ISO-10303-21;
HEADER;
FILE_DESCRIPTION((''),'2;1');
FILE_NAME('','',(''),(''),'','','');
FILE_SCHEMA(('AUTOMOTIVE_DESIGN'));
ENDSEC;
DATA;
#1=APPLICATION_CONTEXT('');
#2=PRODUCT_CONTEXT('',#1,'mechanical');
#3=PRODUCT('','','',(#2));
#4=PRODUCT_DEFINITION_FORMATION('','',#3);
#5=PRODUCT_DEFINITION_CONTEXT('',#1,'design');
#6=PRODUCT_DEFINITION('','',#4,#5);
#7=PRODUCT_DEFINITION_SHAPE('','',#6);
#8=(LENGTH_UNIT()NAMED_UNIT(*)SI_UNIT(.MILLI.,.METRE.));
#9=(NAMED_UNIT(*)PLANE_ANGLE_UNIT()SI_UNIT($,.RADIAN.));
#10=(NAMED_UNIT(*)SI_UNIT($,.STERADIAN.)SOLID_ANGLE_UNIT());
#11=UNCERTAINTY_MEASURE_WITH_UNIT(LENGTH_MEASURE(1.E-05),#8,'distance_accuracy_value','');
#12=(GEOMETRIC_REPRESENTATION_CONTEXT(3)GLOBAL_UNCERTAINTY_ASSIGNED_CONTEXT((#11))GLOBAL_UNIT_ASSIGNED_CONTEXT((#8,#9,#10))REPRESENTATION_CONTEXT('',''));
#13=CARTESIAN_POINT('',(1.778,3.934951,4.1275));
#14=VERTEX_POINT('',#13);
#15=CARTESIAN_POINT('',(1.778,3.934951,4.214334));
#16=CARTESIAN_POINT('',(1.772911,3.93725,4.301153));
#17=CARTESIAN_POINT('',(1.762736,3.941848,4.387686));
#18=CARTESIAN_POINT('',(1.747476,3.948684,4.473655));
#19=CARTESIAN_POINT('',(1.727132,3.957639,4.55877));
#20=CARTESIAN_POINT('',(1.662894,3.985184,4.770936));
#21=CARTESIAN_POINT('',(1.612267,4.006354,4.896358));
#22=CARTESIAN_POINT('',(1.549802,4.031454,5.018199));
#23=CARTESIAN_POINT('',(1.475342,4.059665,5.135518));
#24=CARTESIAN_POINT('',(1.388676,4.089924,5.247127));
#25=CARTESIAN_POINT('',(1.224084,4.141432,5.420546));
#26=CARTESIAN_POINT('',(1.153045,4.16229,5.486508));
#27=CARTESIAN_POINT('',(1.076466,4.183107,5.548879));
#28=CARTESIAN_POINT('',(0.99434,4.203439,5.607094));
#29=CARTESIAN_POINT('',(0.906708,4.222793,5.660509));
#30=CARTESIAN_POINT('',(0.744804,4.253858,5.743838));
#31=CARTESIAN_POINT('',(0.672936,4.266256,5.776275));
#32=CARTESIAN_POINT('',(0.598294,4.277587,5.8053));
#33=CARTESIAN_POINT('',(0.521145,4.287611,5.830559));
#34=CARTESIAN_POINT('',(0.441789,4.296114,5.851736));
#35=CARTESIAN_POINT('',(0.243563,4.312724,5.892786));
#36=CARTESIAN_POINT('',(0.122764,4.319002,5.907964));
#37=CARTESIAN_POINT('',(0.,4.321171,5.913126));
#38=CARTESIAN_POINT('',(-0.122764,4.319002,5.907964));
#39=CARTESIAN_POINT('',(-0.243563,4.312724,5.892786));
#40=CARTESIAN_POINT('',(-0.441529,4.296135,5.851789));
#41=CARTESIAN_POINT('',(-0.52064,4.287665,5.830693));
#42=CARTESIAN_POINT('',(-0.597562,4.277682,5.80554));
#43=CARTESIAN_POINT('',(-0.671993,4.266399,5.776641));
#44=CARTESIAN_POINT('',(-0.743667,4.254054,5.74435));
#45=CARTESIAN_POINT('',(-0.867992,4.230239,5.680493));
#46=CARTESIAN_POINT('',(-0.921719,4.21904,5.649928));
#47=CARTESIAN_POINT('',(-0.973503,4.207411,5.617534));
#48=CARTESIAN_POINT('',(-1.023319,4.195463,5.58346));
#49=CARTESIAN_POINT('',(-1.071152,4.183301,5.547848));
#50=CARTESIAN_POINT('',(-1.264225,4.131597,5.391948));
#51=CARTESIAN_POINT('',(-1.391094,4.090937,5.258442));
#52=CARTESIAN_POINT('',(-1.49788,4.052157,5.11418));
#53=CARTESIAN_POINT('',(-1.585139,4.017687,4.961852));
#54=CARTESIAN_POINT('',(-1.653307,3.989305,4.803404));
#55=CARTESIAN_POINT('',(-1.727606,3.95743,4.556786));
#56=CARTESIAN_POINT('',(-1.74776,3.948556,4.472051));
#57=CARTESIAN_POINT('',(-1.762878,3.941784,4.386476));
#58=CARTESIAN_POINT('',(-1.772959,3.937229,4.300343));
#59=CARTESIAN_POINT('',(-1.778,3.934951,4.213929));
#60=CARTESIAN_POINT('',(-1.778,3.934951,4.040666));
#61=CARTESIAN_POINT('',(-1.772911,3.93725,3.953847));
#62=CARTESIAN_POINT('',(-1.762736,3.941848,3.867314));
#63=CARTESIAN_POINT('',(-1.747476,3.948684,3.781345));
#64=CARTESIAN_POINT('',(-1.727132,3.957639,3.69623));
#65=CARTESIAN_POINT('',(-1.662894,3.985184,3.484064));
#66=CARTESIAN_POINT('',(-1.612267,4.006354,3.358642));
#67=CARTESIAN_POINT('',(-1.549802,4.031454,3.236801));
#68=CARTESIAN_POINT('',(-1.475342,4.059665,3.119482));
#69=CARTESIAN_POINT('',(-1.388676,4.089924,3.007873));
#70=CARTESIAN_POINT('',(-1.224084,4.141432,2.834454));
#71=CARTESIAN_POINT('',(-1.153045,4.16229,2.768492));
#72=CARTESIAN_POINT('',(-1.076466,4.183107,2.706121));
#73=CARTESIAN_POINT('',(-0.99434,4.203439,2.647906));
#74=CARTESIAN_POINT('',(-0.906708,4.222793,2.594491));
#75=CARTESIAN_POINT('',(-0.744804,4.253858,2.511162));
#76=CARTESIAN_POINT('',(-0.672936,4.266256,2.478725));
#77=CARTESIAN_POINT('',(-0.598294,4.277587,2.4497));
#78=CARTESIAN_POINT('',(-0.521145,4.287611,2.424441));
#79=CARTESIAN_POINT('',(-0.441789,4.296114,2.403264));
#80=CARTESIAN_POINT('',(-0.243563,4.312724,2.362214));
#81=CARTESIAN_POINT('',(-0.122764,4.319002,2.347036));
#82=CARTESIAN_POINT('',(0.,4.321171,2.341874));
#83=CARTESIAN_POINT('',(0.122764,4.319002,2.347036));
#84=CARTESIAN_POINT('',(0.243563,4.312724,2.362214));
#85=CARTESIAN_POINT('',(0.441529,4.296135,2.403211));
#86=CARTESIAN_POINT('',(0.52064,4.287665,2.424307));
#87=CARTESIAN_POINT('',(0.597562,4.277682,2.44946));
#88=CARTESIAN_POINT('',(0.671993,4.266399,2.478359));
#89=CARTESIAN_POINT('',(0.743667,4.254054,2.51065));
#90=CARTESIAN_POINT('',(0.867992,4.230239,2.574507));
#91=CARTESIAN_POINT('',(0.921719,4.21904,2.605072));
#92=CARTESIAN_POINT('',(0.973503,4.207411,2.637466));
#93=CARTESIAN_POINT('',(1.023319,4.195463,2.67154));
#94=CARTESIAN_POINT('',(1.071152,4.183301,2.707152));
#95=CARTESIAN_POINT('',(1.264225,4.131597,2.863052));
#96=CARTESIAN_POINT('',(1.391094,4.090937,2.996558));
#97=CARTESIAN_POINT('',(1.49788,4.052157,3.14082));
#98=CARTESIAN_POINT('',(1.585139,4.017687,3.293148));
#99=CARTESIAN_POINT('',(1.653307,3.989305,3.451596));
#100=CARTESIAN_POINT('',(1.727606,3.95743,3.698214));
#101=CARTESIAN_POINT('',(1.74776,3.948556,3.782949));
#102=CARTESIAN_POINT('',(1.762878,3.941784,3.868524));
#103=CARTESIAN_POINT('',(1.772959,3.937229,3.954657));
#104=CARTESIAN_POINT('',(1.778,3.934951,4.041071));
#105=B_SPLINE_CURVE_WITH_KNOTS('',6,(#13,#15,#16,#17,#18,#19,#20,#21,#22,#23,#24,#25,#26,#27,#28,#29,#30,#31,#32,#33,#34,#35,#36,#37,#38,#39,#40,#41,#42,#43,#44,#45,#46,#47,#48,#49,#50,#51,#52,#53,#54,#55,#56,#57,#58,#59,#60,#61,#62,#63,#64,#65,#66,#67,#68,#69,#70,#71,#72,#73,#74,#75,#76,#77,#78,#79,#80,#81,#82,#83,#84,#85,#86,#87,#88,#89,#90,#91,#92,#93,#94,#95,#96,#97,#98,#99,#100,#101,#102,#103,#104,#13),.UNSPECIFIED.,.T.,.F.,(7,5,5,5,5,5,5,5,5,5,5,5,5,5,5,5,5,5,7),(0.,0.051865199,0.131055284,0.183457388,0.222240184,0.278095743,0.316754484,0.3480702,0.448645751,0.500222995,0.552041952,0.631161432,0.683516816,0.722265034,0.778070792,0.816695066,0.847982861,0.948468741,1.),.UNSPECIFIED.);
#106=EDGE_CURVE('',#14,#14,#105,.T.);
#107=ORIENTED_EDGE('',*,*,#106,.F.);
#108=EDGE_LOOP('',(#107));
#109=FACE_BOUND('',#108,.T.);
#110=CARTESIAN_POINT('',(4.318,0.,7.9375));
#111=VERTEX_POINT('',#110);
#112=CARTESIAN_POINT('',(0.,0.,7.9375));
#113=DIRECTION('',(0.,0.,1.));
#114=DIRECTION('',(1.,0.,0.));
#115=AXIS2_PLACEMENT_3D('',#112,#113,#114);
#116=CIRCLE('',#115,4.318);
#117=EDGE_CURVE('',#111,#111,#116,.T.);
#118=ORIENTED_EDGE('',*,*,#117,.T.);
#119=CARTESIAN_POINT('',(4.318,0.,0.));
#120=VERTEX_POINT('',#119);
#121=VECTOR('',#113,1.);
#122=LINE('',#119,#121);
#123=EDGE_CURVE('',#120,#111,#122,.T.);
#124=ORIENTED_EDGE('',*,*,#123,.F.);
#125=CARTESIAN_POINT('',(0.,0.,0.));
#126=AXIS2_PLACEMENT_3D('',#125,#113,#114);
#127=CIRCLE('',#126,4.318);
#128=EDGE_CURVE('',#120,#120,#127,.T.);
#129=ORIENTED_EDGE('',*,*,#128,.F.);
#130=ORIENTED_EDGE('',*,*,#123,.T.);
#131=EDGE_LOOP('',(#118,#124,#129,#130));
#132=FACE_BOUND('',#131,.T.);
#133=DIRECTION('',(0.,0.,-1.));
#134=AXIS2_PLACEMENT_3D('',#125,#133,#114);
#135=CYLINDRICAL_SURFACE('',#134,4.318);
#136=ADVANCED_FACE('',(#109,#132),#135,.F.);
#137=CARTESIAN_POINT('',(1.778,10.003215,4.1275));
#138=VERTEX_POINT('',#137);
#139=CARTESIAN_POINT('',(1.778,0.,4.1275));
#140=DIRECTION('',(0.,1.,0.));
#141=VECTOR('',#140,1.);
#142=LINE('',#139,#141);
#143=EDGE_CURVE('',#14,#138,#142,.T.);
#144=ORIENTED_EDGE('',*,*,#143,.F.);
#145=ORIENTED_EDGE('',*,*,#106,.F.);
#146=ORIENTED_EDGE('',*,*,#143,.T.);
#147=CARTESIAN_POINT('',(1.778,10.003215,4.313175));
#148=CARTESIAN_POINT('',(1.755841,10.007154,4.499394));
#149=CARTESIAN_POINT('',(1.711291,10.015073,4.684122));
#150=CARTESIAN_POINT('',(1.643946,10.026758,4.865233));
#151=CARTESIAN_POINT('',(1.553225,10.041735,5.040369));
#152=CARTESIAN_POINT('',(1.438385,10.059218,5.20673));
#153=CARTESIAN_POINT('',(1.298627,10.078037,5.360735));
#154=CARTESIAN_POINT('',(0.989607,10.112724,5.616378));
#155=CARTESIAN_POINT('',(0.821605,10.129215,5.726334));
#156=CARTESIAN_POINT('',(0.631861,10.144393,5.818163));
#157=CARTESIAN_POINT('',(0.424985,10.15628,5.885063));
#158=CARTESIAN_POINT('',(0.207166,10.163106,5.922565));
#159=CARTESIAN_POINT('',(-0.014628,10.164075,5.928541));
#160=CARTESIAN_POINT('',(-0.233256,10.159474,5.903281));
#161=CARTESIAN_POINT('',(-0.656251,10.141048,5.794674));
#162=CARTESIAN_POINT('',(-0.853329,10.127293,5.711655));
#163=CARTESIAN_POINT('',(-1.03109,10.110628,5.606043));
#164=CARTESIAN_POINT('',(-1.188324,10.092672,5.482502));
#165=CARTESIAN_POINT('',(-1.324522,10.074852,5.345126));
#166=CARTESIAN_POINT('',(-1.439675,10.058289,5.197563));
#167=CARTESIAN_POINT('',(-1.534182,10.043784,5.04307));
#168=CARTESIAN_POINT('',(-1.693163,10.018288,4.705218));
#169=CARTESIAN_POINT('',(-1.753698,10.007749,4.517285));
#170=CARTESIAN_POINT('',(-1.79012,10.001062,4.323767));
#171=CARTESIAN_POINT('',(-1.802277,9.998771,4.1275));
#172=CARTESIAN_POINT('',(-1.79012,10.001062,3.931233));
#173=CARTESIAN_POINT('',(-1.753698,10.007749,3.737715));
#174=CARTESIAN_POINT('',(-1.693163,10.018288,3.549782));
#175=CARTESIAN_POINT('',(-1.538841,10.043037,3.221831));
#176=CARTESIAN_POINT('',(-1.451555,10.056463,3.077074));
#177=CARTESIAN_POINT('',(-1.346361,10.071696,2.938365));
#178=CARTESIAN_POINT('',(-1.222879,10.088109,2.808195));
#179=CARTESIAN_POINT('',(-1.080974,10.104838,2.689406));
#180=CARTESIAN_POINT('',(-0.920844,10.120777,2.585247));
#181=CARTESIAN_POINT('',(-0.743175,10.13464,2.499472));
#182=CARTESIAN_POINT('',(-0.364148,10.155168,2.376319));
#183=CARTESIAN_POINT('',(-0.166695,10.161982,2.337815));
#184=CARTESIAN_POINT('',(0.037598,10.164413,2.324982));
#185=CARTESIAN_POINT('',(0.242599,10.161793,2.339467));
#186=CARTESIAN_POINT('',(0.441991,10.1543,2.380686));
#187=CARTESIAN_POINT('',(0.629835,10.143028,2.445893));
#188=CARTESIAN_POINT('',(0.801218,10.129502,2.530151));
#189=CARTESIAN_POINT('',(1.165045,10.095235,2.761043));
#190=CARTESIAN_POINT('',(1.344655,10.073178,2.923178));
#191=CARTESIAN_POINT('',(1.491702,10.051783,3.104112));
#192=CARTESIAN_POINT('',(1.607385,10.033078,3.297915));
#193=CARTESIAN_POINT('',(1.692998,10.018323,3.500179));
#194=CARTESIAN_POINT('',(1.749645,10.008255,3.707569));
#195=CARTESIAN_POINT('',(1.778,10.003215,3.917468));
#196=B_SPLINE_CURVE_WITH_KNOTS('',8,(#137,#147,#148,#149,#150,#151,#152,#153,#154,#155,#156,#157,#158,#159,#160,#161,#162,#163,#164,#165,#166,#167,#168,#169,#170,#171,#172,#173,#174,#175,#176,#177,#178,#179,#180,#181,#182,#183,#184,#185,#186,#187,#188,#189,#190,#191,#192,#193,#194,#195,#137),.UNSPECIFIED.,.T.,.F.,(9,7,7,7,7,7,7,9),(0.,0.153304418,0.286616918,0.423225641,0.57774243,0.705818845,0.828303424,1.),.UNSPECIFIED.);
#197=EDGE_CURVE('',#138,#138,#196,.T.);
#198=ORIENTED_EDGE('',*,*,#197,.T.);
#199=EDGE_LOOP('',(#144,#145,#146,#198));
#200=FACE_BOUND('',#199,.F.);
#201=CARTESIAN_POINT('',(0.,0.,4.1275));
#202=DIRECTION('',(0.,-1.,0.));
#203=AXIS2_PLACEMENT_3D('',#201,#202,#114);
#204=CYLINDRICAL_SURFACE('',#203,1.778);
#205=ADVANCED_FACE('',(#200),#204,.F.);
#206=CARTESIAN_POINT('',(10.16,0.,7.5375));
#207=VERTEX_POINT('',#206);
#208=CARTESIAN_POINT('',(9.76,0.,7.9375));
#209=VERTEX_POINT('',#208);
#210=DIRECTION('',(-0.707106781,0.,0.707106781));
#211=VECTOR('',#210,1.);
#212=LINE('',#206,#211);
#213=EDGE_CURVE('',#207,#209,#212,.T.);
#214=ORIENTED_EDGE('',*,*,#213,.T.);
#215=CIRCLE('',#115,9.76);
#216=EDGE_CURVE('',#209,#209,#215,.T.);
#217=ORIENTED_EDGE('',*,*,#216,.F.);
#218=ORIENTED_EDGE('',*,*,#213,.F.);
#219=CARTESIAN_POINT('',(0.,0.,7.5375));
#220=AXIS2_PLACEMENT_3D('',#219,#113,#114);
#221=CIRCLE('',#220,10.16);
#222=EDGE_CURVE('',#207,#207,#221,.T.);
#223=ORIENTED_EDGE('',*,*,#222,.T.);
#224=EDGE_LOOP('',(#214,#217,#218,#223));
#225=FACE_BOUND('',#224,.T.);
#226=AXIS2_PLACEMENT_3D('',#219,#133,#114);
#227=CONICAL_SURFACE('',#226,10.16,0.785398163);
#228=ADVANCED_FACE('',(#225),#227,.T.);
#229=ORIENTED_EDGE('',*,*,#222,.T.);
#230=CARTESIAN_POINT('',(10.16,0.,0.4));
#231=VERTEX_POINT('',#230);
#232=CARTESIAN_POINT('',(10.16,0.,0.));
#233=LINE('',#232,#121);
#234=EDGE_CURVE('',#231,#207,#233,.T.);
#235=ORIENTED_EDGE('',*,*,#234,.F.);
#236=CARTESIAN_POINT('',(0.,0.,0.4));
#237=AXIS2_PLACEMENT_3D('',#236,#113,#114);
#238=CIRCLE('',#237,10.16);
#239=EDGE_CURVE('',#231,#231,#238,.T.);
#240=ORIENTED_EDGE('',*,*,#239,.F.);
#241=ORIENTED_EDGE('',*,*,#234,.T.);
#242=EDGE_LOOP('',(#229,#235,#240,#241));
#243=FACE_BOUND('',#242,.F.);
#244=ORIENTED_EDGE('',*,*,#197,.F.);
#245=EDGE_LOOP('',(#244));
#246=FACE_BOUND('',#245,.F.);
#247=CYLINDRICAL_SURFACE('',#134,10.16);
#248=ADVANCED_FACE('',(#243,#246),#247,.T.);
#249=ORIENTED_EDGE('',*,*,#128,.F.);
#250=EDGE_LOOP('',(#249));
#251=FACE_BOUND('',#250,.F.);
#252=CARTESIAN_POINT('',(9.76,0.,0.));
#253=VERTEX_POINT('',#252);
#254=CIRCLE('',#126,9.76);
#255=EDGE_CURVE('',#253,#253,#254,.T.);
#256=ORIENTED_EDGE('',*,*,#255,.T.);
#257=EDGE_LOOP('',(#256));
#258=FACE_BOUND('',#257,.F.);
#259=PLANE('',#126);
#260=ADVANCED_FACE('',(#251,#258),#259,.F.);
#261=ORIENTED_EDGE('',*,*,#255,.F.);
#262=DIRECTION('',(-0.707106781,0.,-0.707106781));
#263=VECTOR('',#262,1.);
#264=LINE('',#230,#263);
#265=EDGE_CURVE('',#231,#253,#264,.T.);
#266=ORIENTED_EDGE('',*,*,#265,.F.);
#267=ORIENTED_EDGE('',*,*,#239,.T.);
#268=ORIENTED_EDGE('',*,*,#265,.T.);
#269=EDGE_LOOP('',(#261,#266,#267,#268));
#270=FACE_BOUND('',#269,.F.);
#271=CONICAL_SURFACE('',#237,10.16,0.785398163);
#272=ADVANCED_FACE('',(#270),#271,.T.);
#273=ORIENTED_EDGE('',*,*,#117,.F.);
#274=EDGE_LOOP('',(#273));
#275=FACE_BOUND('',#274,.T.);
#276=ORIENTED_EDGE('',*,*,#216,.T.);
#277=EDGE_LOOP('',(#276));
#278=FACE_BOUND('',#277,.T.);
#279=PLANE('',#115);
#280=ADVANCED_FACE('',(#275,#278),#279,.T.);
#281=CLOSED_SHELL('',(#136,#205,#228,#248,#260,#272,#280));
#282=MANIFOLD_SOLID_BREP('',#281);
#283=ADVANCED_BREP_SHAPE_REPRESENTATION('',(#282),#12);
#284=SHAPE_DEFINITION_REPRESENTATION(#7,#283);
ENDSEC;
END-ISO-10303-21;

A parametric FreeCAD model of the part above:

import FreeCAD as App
import Part
import Sketcher
from FreeCAD import Vector
Q = App.Units.Quantity


def edges_at(feature, points):
    """Names of the edges that pass closest to the given points."""
    edges = feature.Shape.Edges
    near = lambda p: min(range(len(edges)), key=lambda i: edges[i].distToShape(Part.Vertex(*p))[0])
    return sorted({f"Edge{near(p) + 1}" for p in points})

doc = App.newDocument("Part")
body = doc.addObject("PartDesign::Body", "Body")

# Sketch on XY plane
sketch1 = doc.addObject("Sketcher::SketchObject", "Sketch")
body.addObject(sketch1)
sketch1.AttachmentSupport = (doc.XY_Plane, [""])
sketch1.MapMode = "FlatFace"
sketch1.addGeometry(Part.Circle(Vector(0, 0, 0), Vector(0, 0, 1), 10.2), False)
sketch1.addGeometry(Part.Circle(Vector(0, 0, 0), Vector(0, 0, 1), 4.3), False)
sketch1.addConstraint(Sketcher.Constraint("Coincident", 0, 3, -1, 1))
sketch1.addConstraint(Sketcher.Constraint("Coincident", 1, 3, -1, 1))
sketch1.addConstraint(Sketcher.Constraint("Diameter", 0, Q("0.8 in")))
sketch1.addConstraint(Sketcher.Constraint("Diameter", 1, Q("0.34 in")))
pad1 = doc.addObject("PartDesign::Pad", "Pad")
body.addObject(pad1)
pad1.Profile = sketch1
pad1.Length = Q("0.3125 in")

# Sketch on XZ plane
sketch2 = doc.addObject("Sketcher::SketchObject", "Sketch001")
body.addObject(sketch2)
sketch2.AttachmentSupport = (doc.XZ_Plane, [""])
sketch2.MapMode = "FlatFace"
sketch2.addGeometry(Part.Circle(Vector(0, 4.1, 0), Vector(0, 0, 1), 1.8), False)
sketch2.addConstraint(Sketcher.Constraint("PointOnObject", 0, 3, -2))
sketch2.addConstraint(Sketcher.Constraint("Diameter", 0, Q("0.14 in")))
sketch2.addConstraint(Sketcher.Constraint("DistanceY", -1, 1, 0, 3, Q("0.1625 in")))
pocket1 = doc.addObject("PartDesign::Pocket", "Pocket")
body.addObject(pocket1)
pocket1.Profile = sketch2
pocket1.Length = Q("1 in")
doc.recompute()

chamfer = doc.addObject("PartDesign::Chamfer", "Chamfer")
body.addObject(chamfer)
chamfer.Base = (pocket1, edges_at(pocket1, [(-10.16, 0, 0), (-10.16, 0, 7.938)]))
chamfer.Size = 0.4

doc.recompute()
